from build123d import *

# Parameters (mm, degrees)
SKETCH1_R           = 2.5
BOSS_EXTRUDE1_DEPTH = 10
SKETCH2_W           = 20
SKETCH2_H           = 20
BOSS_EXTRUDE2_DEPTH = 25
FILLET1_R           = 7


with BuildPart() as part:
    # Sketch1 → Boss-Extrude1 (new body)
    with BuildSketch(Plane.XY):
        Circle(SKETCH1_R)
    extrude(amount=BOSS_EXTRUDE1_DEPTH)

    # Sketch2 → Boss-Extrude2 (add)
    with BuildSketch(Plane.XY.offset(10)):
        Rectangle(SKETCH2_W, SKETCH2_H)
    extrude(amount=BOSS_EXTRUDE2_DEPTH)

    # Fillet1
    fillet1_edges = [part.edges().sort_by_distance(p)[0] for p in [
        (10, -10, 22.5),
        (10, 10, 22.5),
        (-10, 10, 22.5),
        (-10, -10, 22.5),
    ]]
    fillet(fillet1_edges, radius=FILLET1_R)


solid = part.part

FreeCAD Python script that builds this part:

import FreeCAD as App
import Part
import Sketcher


def edges_at(feature, points):
    """Names of the edges that pass closest to the given points."""
    edges = feature.Shape.Edges
    near = lambda p: min(range(len(edges)), key=lambda i: edges[i].distToShape(Part.Vertex(*p))[0])
    return sorted({f"Edge{near(p) + 1}" for p in points})


def add_polygon(sketch, points):
    """Adds a closed chain of lines whose ends are joined by coincident constraints."""
    first, n = sketch.GeometryCount, len(points)
    for a, b in zip(points, points[1:] + points[:1]):
        sketch.addGeometry(Part.LineSegment(App.Vector(*a, 0), App.Vector(*b, 0)), False)
    for i in range(n):
        sketch.addConstraint(Sketcher.Constraint("Coincident", first + i, 2, first + (i + 1) % n, 1))

doc = App.newDocument("Part")
body = doc.addObject("PartDesign::Body", "Body")

sketch1 = doc.addObject("Sketcher::SketchObject", "Sketch")
body.addObject(sketch1)
sketch1.AttachmentSupport = (doc.XY_Plane, [""])
sketch1.MapMode = "FlatFace"
sketch1.addGeometry(Part.Circle(App.Vector(0, 0, 0), App.Vector(0, 0, 1), 2.5), False)
sketch1.addConstraint(Sketcher.Constraint("Coincident", 0, 3, -1, 1))
sketch1.addConstraint(Sketcher.Constraint("Diameter", 0, 5.0))
pad1 = doc.addObject("PartDesign::Pad", "Pad")
body.addObject(pad1)
pad1.Profile = sketch1
pad1.Length = 10

sketch2 = doc.addObject("Sketcher::SketchObject", "Sketch001")
body.addObject(sketch2)
sketch2.AttachmentSupport = (doc.XY_Plane, [""])
sketch2.MapMode = "FlatFace"
sketch2.AttachmentOffset = App.Placement(App.Vector(0, 0, 10), App.Rotation())
add_polygon(sketch2, [(-10, 10), (-10, -10), (10, -10), (10, 10)])
sketch2.addConstraint(Sketcher.Constraint("Vertical", 0))
sketch2.addConstraint(Sketcher.Constraint("Horizontal", 1))
sketch2.addConstraint(Sketcher.Constraint("Vertical", 2))
sketch2.addConstraint(Sketcher.Constraint("Horizontal", 3))
sketch2.addConstraint(Sketcher.Constraint("Symmetric", 0, 2, 2, 2, -1, 1))
sketch2.addConstraint(Sketcher.Constraint("Equal", 3, 0))
sketch2.addConstraint(Sketcher.Constraint("DistanceX", 1, 1, 1, 2, 20.0))
pad2 = doc.addObject("PartDesign::Pad", "Pad001")
body.addObject(pad2)
pad2.Profile = sketch2
pad2.Length = 25
doc.recompute()

fillet = doc.addObject("PartDesign::Fillet", "Fillet")
body.addObject(fillet)
fillet.Base = (pad2, edges_at(pad2, [
    (10, -10, 22.5),
    (10, 10, 22.5),
    (-10, 10, 22.5),
    (-10, -10, 22.5),
]))
fillet.Radius = 7

doc.recompute()
